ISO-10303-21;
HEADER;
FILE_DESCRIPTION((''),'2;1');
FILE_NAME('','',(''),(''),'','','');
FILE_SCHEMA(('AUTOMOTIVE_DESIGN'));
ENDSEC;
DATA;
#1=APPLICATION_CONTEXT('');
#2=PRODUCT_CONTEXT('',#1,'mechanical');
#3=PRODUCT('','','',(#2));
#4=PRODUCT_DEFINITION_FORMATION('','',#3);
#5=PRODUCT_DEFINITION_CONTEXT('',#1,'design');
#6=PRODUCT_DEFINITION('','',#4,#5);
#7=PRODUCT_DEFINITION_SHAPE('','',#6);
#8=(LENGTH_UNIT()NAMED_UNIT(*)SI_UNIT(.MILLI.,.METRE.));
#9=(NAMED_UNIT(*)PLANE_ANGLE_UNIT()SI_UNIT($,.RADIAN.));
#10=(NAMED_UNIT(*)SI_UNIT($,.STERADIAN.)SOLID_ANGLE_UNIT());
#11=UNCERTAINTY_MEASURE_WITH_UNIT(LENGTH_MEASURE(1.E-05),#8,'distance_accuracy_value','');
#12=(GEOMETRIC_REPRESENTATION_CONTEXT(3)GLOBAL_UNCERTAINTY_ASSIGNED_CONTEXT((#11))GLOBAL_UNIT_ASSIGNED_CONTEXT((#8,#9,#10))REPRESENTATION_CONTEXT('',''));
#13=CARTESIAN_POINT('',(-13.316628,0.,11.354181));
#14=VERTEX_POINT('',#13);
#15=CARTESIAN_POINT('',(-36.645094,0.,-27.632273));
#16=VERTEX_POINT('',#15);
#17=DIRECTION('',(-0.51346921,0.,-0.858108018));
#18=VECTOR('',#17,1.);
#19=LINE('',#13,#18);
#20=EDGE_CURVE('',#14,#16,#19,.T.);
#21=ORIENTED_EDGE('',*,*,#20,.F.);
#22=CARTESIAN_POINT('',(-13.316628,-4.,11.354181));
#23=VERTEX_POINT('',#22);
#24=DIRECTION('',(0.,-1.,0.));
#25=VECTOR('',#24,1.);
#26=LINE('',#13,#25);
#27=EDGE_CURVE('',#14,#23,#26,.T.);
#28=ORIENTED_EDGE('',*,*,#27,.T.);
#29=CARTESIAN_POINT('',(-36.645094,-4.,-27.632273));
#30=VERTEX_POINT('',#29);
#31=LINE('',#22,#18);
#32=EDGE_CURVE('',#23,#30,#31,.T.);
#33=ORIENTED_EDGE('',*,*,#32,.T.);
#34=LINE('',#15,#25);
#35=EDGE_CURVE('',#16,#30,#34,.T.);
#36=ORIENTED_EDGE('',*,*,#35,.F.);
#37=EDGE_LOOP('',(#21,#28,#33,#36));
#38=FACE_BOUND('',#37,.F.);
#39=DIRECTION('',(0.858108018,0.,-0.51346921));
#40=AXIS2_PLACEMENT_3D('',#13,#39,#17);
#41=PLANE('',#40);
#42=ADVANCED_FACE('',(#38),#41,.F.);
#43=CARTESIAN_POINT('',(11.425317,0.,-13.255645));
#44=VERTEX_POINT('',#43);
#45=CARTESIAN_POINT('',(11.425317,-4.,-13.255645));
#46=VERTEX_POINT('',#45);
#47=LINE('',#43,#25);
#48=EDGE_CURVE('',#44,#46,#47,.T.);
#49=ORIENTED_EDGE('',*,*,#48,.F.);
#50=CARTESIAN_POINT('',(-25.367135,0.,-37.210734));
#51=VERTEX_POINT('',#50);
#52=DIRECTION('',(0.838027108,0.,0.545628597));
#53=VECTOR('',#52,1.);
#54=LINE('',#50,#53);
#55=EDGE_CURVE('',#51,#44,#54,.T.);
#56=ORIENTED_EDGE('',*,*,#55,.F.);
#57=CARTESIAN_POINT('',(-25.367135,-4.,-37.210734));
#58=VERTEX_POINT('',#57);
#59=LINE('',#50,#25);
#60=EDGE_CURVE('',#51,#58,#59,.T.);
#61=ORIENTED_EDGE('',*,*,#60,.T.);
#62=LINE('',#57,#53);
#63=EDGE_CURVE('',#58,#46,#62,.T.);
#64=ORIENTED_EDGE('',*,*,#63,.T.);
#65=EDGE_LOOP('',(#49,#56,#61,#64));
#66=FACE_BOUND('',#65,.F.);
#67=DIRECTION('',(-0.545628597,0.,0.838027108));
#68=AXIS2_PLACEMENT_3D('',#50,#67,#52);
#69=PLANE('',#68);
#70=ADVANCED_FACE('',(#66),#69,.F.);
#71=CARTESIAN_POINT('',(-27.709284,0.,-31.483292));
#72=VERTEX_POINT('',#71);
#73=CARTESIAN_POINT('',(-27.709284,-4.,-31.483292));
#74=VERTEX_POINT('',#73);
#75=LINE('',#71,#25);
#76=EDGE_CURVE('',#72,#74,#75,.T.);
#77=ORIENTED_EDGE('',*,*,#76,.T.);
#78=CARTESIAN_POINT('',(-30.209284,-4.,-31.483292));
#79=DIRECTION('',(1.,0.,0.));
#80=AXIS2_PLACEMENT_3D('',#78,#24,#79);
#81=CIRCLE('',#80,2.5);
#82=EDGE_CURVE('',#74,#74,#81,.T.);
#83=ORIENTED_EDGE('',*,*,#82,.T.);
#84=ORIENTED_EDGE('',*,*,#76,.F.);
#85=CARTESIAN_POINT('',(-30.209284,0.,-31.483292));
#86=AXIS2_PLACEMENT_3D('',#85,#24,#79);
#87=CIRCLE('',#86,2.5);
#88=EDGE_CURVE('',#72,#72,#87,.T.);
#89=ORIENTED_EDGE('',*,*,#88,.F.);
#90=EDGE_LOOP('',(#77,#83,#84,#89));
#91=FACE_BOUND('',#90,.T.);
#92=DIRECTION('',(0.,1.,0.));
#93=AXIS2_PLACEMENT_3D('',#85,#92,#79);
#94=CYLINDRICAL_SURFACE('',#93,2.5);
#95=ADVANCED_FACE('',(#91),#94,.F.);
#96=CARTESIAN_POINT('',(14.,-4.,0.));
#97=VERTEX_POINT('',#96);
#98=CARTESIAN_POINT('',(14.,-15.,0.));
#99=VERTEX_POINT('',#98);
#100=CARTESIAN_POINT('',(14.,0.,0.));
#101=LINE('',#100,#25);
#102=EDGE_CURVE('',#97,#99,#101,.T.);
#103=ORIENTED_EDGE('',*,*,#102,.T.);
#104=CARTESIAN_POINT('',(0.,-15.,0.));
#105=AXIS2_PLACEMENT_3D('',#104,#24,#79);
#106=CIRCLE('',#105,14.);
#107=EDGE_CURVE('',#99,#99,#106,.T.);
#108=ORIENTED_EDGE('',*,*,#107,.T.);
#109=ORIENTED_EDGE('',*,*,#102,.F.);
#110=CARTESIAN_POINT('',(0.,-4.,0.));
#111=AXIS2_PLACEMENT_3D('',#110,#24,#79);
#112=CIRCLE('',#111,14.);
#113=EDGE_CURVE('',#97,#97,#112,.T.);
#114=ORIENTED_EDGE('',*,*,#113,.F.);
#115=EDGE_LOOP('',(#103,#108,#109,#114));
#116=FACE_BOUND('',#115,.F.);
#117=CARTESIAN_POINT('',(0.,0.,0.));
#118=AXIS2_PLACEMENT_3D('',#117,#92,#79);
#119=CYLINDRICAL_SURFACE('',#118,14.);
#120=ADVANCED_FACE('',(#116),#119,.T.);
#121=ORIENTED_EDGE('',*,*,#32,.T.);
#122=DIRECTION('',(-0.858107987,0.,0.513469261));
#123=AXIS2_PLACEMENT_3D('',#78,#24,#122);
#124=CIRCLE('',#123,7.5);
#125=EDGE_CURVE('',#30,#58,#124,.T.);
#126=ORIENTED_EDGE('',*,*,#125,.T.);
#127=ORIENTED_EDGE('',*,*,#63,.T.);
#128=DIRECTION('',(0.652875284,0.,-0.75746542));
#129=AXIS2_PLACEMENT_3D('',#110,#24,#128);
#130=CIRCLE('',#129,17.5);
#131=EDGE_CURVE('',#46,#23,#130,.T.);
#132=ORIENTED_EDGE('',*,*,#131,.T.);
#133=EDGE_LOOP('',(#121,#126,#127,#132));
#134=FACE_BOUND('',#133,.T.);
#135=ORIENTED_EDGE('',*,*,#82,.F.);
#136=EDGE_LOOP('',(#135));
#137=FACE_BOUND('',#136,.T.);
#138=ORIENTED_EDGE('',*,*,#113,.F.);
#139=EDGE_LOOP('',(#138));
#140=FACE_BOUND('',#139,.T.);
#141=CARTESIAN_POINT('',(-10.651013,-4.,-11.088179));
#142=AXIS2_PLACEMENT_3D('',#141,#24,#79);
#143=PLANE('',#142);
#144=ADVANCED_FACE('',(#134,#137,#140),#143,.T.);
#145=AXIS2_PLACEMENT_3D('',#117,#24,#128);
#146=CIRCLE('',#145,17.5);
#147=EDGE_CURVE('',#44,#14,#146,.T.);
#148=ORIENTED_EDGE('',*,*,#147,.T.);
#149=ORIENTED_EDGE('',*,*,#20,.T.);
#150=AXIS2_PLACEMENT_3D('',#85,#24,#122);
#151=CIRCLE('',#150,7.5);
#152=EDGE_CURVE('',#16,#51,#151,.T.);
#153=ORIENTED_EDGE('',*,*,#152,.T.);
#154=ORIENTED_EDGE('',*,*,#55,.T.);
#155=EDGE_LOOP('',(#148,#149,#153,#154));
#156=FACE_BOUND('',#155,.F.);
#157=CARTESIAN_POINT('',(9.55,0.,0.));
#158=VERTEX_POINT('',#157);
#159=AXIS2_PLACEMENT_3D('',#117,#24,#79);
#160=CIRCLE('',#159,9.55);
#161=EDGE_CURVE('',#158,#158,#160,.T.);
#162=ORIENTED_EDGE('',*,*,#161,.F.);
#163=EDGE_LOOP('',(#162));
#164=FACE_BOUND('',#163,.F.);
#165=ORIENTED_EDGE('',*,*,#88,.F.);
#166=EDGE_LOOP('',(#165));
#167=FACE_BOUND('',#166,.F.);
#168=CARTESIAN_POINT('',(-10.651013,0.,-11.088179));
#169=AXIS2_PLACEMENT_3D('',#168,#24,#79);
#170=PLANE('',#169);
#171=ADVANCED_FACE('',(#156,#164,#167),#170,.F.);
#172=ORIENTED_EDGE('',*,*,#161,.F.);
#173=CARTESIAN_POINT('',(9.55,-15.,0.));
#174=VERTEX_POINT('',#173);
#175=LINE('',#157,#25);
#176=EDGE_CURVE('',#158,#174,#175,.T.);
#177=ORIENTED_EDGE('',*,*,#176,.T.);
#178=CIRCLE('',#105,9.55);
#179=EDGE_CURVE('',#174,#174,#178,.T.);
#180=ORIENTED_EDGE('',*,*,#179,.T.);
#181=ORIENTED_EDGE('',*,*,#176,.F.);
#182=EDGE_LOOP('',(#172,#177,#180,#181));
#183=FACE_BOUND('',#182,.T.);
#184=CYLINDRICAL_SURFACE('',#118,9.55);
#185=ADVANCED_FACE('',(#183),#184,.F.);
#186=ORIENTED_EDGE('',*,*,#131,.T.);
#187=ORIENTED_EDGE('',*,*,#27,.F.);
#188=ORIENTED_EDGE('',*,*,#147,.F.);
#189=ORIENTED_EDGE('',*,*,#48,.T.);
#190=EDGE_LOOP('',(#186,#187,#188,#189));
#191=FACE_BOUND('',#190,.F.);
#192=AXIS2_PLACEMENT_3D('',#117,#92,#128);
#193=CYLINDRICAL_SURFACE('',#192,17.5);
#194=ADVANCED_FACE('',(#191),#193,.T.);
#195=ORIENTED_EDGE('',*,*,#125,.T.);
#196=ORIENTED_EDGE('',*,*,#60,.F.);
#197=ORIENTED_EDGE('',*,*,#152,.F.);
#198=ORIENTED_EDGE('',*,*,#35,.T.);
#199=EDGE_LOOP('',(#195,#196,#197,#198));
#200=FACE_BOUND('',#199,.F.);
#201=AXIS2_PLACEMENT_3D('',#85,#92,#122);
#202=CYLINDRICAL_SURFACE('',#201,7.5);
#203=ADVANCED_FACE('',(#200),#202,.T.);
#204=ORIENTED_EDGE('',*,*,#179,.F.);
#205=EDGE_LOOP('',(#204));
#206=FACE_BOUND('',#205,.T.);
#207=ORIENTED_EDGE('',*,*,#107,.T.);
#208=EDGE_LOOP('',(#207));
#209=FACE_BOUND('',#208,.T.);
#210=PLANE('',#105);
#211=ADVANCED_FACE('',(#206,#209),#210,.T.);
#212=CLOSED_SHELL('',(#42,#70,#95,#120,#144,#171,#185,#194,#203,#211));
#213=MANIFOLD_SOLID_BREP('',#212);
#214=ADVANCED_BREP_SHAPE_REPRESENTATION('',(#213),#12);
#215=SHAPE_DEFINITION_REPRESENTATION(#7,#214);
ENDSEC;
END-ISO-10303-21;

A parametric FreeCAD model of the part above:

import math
import FreeCAD as App
import Part
import Sketcher
Q = App.Units.Quantity

doc = App.newDocument("Part")
body = doc.addObject("PartDesign::Body", "Body")

sketch1 = doc.addObject("Sketcher::SketchObject", "Sketch")
body.addObject(sketch1)
sketch1.AttachmentSupport = (doc.XZ_Plane, [""])
sketch1.MapMode = "FlatFace"
sketch1.addGeometry(Part.Circle(App.Vector(0, 0, 0), App.Vector(0, 0, 1), 14), False)
sketch1.addGeometry(Part.Circle(App.Vector(0, 0, 0), App.Vector(0, 0, 1), 10), False)
sketch1.addConstraint(Sketcher.Constraint("Coincident", 0, 3, -1, 1))
sketch1.addConstraint(Sketcher.Constraint("Coincident", 1, 3, -1, 1))
sketch1.addConstraint(Sketcher.Constraint("Diameter", 0, Q("28 mm")))
sketch1.addConstraint(Sketcher.Constraint("Diameter", 1, Q("19.1 mm")))
pad1 = doc.addObject("PartDesign::Pad", "Pad")
body.addObject(pad1)
pad1.Profile = sketch1
pad1.Length = 15

sketch2 = doc.addObject("Sketcher::SketchObject", "Sketch001")
body.addObject(sketch2)
sketch2.AttachmentSupport = (doc.XZ_Plane, [""])
sketch2.MapMode = "FlatFace"
sketch2.addGeometry(Part.ArcOfCircle(Part.Circle(App.Vector(0, 0, 0), App.Vector(0, 0, 1), 17.5), math.radians(-49), math.radians(140)), False)
sketch2.addGeometry(Part.LineSegment(App.Vector(-13.3, 11.4, 0), App.Vector(-36.6, -27.6, 0)), False)
sketch2.addGeometry(Part.ArcOfCircle(Part.Circle(App.Vector(-30.2, -31.5, 0), App.Vector(0, 0, 1), 7.5), math.radians(149), math.radians(310)), False)
sketch2.addGeometry(Part.LineSegment(App.Vector(-25.4, -37.2, 0), App.Vector(11.4, -13.3, 0)), False)
sketch2.addGeometry(Part.Circle(App.Vector(-30.2, -31.5, 0), App.Vector(0, 0, 1), 2.5), False)
sketch2.addGeometry(Part.Circle(App.Vector(0, 0, 0), App.Vector(0, 0, 1), 14), False)
sketch2.addConstraint(Sketcher.Constraint("Coincident", 0, 2, 1, 1))
sketch2.addConstraint(Sketcher.Constraint("Tangent", 1, 2, 2, 1))
sketch2.addConstraint(Sketcher.Constraint("Coincident", 2, 2, 3, 1))
sketch2.addConstraint(Sketcher.Constraint("Coincident", 3, 2, 0, 1))
sketch2.addConstraint(Sketcher.Constraint("Coincident", 0, 3, -1, 1))
sketch2.addConstraint(Sketcher.Constraint("Coincident", 5, 3, -1, 1))
sketch2.addConstraint(Sketcher.Constraint("Coincident", 4, 3, 2, 3))
sketch2.addConstraint(Sketcher.Constraint("Diameter", 4, Q("5 mm")))
sketch2.addConstraint(Sketcher.Constraint("Diameter", 5, Q("28 mm")))
sketch2.addConstraint(Sketcher.Constraint("Radius", 0, Q("17.5 mm")))
sketch2.addConstraint(Sketcher.Constraint("Radius", 2, Q("7.5 mm")))
sketch2.addConstraint(Sketcher.Constraint("DistanceX", 4, 3, 3, 2, Q("41.634601 mm")))
sketch2.addConstraint(Sketcher.Constraint("DistanceY", 4, 3, -1, 1, Q("31.483292 mm")))
sketch2.addConstraint(Sketcher.Constraint("DistanceY", -1, 1, 0, 2, Q("11.354181 mm")))
sketch2.addConstraint(Sketcher.Constraint("DistanceX", 1, 2, 2, 3, Q("6.43581 mm")))
sketch2.addConstraint(Sketcher.Constraint("DistanceX", 2, 3, 2, 2, Q("4.842149 mm")))
pad2 = doc.addObject("PartDesign::Pad", "Pad001")
body.addObject(pad2)
pad2.Profile = sketch2
pad2.Length = 4

doc.recompute()
